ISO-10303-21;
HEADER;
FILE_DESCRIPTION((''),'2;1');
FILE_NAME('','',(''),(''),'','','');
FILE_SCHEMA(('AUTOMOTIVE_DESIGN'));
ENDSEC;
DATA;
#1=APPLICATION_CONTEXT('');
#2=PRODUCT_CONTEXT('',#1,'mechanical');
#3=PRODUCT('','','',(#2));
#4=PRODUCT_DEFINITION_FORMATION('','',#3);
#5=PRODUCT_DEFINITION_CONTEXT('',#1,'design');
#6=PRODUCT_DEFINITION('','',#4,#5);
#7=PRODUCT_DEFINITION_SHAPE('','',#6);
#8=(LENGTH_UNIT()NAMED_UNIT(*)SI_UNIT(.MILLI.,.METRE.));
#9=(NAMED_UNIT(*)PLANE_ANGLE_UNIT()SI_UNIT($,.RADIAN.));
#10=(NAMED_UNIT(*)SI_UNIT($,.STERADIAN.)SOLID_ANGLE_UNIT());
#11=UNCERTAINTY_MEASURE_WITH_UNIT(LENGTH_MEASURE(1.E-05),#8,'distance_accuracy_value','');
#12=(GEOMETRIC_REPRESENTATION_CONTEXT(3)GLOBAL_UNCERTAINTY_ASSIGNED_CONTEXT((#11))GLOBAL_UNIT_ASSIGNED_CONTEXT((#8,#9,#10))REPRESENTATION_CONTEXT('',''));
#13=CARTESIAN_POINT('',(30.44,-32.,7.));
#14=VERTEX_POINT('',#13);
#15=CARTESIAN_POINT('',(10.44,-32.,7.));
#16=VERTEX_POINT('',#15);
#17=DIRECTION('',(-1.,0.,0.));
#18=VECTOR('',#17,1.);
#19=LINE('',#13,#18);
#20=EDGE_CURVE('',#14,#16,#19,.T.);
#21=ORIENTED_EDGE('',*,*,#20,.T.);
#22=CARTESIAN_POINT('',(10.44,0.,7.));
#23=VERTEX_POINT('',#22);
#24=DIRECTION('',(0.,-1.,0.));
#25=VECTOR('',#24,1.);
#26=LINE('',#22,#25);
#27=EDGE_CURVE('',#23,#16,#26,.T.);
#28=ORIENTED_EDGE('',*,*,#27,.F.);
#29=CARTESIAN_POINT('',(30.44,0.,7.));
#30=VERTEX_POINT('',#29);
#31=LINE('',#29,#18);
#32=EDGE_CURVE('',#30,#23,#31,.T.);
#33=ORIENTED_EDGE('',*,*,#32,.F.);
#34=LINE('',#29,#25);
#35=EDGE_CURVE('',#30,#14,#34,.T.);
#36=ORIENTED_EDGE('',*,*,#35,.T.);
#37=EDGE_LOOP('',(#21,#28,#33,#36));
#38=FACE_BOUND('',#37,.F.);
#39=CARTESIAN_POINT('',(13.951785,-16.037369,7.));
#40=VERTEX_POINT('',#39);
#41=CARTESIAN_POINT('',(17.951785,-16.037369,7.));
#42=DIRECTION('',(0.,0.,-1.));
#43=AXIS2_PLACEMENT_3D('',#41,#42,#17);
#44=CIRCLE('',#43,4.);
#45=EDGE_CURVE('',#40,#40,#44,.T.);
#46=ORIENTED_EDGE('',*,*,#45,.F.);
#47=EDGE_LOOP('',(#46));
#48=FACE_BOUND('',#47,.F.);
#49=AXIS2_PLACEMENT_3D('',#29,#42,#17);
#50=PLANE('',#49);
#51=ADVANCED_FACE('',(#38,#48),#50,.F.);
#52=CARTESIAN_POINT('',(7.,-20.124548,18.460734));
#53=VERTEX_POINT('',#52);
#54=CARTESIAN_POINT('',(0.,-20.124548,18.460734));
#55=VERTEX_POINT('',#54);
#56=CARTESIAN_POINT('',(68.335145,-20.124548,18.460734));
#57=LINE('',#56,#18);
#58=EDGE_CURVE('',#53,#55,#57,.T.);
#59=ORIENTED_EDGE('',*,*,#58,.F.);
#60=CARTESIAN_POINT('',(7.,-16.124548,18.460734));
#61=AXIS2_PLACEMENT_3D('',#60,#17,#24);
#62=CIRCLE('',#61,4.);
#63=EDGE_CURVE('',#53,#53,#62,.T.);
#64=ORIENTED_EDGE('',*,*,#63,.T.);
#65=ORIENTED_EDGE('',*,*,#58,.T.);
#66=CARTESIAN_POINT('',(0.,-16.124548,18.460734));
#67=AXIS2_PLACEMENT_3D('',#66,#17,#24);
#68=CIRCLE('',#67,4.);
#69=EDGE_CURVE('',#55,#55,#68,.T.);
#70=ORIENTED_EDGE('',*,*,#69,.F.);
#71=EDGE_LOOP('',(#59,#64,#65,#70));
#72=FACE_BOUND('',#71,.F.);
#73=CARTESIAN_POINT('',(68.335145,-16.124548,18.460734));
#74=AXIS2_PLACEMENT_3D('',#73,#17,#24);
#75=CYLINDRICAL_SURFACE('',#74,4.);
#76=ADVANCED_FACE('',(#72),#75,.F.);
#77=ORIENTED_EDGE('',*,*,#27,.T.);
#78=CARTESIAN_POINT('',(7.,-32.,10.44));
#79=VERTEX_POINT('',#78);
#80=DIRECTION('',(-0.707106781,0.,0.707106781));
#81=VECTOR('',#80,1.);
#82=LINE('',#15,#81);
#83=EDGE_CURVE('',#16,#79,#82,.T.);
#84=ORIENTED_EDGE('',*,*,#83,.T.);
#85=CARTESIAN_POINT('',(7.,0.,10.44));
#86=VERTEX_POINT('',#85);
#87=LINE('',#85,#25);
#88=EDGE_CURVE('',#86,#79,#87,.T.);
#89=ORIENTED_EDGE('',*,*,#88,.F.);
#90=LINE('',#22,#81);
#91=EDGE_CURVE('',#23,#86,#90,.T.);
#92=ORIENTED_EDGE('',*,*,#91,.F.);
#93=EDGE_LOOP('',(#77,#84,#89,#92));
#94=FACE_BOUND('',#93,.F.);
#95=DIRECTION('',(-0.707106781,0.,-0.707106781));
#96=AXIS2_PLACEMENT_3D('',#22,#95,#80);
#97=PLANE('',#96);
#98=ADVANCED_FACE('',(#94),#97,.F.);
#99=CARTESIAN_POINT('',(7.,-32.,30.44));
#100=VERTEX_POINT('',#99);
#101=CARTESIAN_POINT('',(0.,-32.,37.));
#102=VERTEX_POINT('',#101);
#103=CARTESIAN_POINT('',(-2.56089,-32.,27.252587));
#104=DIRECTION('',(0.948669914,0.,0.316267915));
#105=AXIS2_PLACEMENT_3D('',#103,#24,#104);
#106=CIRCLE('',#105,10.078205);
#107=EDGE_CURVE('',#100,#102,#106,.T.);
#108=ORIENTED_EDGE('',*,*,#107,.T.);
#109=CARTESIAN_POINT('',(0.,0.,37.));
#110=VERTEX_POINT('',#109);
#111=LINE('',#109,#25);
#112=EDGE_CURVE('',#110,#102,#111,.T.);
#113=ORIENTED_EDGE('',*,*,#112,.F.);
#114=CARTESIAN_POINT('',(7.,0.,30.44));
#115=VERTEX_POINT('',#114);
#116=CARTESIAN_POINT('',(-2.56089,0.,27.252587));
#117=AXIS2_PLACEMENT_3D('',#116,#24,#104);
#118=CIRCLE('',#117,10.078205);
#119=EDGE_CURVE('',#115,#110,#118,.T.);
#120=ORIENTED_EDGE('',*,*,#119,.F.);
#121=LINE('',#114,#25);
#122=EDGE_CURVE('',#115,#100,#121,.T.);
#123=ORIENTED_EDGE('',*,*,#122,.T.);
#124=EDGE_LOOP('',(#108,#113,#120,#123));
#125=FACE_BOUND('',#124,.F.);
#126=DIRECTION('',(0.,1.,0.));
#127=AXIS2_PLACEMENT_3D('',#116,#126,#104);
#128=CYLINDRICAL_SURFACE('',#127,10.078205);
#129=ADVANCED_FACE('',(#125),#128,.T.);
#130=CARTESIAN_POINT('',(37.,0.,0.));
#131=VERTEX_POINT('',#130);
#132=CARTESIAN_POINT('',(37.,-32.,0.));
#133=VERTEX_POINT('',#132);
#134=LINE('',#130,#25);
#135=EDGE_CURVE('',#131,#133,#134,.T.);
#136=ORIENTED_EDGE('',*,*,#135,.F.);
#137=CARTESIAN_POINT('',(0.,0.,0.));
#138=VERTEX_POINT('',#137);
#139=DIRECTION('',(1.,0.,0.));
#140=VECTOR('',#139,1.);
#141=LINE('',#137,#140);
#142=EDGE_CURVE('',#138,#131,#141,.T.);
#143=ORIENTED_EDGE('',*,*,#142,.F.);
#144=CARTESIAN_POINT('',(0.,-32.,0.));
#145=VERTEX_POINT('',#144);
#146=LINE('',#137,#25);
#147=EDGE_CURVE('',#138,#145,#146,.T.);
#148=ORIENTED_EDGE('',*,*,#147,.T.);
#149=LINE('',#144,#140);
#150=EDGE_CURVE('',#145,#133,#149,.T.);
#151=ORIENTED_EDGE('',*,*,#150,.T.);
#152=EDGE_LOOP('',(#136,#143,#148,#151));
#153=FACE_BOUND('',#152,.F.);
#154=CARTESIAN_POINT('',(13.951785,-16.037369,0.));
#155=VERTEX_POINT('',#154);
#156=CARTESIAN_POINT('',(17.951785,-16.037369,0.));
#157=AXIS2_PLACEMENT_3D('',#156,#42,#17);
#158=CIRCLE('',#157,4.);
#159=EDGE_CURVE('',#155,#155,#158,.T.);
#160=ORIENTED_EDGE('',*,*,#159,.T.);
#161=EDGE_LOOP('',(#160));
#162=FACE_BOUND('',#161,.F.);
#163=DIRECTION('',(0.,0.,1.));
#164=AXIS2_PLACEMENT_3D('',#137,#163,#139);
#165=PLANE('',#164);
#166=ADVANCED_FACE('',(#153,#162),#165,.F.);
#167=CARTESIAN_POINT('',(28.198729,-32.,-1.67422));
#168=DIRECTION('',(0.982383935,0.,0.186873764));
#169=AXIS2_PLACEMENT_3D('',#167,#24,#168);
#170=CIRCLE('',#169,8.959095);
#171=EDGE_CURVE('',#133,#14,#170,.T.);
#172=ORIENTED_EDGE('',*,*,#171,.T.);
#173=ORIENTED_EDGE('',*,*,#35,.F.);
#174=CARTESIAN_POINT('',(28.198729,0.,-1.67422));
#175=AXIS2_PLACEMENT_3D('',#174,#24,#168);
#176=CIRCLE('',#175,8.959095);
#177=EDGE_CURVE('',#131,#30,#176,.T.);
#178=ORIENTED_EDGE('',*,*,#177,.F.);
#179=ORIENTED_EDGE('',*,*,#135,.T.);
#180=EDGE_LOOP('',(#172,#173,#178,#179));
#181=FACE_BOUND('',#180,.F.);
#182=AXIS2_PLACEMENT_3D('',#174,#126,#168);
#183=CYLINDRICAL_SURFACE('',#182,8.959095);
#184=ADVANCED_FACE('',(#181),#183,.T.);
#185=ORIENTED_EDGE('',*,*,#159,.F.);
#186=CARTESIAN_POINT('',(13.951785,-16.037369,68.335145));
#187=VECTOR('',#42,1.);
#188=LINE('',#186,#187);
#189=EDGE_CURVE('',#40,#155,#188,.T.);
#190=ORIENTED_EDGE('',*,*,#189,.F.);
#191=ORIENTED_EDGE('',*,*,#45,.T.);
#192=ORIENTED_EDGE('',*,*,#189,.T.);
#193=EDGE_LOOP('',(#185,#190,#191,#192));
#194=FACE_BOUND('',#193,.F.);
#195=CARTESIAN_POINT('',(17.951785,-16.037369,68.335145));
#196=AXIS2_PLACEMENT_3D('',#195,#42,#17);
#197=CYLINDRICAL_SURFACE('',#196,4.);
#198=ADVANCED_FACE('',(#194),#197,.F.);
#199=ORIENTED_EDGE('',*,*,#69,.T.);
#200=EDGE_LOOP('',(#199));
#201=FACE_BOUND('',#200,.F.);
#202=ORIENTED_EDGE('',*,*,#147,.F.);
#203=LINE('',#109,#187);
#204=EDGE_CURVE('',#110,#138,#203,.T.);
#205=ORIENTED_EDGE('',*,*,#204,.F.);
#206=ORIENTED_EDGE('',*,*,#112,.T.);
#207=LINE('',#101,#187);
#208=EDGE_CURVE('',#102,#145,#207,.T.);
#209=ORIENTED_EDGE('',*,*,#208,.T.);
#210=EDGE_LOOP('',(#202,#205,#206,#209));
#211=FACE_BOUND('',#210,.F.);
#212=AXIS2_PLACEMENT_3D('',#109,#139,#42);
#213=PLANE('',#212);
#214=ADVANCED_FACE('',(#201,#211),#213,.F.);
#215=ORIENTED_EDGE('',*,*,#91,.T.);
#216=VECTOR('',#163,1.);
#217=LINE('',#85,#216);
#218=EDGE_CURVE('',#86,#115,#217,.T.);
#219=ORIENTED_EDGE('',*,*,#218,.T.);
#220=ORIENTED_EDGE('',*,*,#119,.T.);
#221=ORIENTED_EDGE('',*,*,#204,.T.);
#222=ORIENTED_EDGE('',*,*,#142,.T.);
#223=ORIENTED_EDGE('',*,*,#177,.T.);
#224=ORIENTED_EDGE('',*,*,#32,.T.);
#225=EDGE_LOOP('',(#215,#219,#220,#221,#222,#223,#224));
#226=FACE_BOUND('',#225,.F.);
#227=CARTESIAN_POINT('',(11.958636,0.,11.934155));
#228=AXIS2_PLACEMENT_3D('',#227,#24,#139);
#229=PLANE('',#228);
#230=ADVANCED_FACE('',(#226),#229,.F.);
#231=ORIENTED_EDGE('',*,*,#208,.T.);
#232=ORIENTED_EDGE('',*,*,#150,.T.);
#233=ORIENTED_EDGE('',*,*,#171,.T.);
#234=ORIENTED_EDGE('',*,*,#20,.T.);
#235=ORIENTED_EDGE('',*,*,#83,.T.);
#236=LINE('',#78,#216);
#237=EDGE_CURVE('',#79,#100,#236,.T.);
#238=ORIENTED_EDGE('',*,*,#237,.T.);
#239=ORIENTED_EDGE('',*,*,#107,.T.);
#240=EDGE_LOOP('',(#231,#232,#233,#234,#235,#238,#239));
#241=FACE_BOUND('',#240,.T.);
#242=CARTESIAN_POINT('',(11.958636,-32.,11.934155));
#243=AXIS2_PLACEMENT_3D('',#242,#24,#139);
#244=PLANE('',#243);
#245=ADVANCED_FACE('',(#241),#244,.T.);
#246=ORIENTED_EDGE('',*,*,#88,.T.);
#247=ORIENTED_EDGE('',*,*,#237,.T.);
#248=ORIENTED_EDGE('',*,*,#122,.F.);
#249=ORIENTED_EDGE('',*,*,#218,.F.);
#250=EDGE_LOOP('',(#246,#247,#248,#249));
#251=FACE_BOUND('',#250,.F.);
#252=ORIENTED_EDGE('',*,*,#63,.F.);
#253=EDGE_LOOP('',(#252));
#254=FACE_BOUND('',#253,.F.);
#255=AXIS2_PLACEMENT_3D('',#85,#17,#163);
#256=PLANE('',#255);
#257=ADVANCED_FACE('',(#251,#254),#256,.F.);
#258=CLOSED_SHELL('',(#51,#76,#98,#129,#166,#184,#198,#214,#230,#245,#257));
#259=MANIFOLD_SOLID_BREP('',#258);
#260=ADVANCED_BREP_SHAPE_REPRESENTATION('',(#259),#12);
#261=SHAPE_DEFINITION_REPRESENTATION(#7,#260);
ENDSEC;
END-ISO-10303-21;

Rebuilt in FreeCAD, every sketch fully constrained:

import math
import FreeCAD as App
import Part
import Sketcher
from FreeCAD import Vector
Q = App.Units.Quantity

doc = App.newDocument("Part")
body = doc.addObject("PartDesign::Body", "Body")

sketch1 = body.newObject("Sketcher::SketchObject", "Sketch")
sketch1.AttachmentSupport = (doc.getObject("XZ_Plane"), [""])
sketch1.MapMode = "FlatFace"
sketch1.addGeometry([
    Part.LineSegment(Vector(0, 37, 0), Vector(0, 0, 0)),
    Part.LineSegment(Vector(0, 0, 0), Vector(37, 0, 0)),
    Part.ArcOfCircle(Part.Circle(Vector(28.2, -1.7, 0), Vector(0, 0, 1), 9), math.radians(11), math.radians(76)),
    Part.LineSegment(Vector(30.4, 7, 0), Vector(10.4, 7, 0)),
    Part.LineSegment(Vector(10.4, 7, 0), Vector(7, 10.4, 0)),
    Part.LineSegment(Vector(7, 10.4, 0), Vector(7, 30.4, 0)),
    Part.ArcOfCircle(Part.Circle(Vector(-2.6, 27.3, 0), Vector(0, 0, 1), 10.1), math.radians(18), math.radians(75)),
], False)
sketch1.addConstraint([
    Sketcher.Constraint("Coincident", 0, 2, 1, 1),
    Sketcher.Constraint("Coincident", 1, 2, 2, 1),
    Sketcher.Constraint("Coincident", 2, 2, 3, 1),
    Sketcher.Constraint("Coincident", 3, 2, 4, 1),
    Sketcher.Constraint("Coincident", 4, 2, 5, 1),
    Sketcher.Constraint("Coincident", 5, 2, 6, 1),
    Sketcher.Constraint("Coincident", 6, 2, 0, 1),
    Sketcher.Constraint("Vertical", 0),
    Sketcher.Constraint("Horizontal", 1),
    Sketcher.Constraint("Horizontal", 3),
    Sketcher.Constraint("Vertical", 5),
    Sketcher.Constraint("Coincident", 0, 2, -1, 1),
    Sketcher.Constraint("Equal", 1, 0),
    Sketcher.Constraint("Equal", 3, 5),
    Sketcher.Constraint("DistanceX", 1, 1, 1, 2, Q("37 mm")),
    Sketcher.Constraint("DistanceX", 3, 2, 3, 1, Q("20 mm")),
    Sketcher.Constraint("Angle", 4, Q("135 deg")),
    Sketcher.Constraint("DistanceY", -1, 1, 2, 2, Q("7 mm")),
    Sketcher.Constraint("DistanceX", -1, 1, 4, 2, Q("7 mm")),
    Sketcher.Constraint("DistanceX", -1, 1, 2, 2, Q("30.44 mm")),
    Sketcher.Constraint("Radius", 2, Q("8.959095 mm")),
    Sketcher.Constraint("Radius", 6, Q("10.078205 mm")),
])
pad1 = body.newObject("PartDesign::Pad", "Pad")
pad1.Profile = sketch1
pad1.Length = 32

sketch2 = body.newObject("Sketcher::SketchObject", "Sketch001")
sketch2.AttachmentSupport = (doc.getObject("YZ_Plane"), [""])
sketch2.MapMode = "FlatFace"
sketch2.AttachmentOffset = App.Placement(Vector(0, 0, 7), App.Rotation())
sketch2.addGeometry(Part.Circle(Vector(-16.1, 18.5, 0), Vector(0, 0, 1), 4), False)
sketch2.addConstraint([
    Sketcher.Constraint("Diameter", 0, Q("8 mm")),
    Sketcher.Constraint("DistanceX", 0, 3, -1, 1, Q("16.124548 mm")),
    Sketcher.Constraint("DistanceY", -1, 1, 0, 3, Q("18.460734 mm")),
])
doc.recompute()
hole = body.newObject("PartDesign::Hole", "Hole")
hole.Profile = sketch2
hole.ThreadType = "None"
hole.Diameter = 8
hole.DepthType = "ThroughAll"

sketch3 = body.newObject("Sketcher::SketchObject", "Sketch002")
sketch3.AttachmentSupport = (doc.getObject("XY_Plane"), [""])
sketch3.MapMode = "FlatFace"
sketch3.AttachmentOffset = App.Placement(Vector(0, 0, 7), App.Rotation())
sketch3.addGeometry(Part.Circle(Vector(18, -16, 0), Vector(0, 0, 1), 4), False)
sketch3.addConstraint([
    Sketcher.Constraint("Diameter", 0, Q("8 mm")),
    Sketcher.Constraint("DistanceY", 0, 3, -1, 1, Q("16.037369 mm")),
    Sketcher.Constraint("DistanceX", -1, 1, 0, 3, Q("17.951785 mm")),
])
doc.recompute()
hole2 = body.newObject("PartDesign::Hole", "Hole001")
hole2.Profile = sketch3
hole2.ThreadType = "None"
hole2.Diameter = 8
hole2.DepthType = "ThroughAll"

doc.recompute()
